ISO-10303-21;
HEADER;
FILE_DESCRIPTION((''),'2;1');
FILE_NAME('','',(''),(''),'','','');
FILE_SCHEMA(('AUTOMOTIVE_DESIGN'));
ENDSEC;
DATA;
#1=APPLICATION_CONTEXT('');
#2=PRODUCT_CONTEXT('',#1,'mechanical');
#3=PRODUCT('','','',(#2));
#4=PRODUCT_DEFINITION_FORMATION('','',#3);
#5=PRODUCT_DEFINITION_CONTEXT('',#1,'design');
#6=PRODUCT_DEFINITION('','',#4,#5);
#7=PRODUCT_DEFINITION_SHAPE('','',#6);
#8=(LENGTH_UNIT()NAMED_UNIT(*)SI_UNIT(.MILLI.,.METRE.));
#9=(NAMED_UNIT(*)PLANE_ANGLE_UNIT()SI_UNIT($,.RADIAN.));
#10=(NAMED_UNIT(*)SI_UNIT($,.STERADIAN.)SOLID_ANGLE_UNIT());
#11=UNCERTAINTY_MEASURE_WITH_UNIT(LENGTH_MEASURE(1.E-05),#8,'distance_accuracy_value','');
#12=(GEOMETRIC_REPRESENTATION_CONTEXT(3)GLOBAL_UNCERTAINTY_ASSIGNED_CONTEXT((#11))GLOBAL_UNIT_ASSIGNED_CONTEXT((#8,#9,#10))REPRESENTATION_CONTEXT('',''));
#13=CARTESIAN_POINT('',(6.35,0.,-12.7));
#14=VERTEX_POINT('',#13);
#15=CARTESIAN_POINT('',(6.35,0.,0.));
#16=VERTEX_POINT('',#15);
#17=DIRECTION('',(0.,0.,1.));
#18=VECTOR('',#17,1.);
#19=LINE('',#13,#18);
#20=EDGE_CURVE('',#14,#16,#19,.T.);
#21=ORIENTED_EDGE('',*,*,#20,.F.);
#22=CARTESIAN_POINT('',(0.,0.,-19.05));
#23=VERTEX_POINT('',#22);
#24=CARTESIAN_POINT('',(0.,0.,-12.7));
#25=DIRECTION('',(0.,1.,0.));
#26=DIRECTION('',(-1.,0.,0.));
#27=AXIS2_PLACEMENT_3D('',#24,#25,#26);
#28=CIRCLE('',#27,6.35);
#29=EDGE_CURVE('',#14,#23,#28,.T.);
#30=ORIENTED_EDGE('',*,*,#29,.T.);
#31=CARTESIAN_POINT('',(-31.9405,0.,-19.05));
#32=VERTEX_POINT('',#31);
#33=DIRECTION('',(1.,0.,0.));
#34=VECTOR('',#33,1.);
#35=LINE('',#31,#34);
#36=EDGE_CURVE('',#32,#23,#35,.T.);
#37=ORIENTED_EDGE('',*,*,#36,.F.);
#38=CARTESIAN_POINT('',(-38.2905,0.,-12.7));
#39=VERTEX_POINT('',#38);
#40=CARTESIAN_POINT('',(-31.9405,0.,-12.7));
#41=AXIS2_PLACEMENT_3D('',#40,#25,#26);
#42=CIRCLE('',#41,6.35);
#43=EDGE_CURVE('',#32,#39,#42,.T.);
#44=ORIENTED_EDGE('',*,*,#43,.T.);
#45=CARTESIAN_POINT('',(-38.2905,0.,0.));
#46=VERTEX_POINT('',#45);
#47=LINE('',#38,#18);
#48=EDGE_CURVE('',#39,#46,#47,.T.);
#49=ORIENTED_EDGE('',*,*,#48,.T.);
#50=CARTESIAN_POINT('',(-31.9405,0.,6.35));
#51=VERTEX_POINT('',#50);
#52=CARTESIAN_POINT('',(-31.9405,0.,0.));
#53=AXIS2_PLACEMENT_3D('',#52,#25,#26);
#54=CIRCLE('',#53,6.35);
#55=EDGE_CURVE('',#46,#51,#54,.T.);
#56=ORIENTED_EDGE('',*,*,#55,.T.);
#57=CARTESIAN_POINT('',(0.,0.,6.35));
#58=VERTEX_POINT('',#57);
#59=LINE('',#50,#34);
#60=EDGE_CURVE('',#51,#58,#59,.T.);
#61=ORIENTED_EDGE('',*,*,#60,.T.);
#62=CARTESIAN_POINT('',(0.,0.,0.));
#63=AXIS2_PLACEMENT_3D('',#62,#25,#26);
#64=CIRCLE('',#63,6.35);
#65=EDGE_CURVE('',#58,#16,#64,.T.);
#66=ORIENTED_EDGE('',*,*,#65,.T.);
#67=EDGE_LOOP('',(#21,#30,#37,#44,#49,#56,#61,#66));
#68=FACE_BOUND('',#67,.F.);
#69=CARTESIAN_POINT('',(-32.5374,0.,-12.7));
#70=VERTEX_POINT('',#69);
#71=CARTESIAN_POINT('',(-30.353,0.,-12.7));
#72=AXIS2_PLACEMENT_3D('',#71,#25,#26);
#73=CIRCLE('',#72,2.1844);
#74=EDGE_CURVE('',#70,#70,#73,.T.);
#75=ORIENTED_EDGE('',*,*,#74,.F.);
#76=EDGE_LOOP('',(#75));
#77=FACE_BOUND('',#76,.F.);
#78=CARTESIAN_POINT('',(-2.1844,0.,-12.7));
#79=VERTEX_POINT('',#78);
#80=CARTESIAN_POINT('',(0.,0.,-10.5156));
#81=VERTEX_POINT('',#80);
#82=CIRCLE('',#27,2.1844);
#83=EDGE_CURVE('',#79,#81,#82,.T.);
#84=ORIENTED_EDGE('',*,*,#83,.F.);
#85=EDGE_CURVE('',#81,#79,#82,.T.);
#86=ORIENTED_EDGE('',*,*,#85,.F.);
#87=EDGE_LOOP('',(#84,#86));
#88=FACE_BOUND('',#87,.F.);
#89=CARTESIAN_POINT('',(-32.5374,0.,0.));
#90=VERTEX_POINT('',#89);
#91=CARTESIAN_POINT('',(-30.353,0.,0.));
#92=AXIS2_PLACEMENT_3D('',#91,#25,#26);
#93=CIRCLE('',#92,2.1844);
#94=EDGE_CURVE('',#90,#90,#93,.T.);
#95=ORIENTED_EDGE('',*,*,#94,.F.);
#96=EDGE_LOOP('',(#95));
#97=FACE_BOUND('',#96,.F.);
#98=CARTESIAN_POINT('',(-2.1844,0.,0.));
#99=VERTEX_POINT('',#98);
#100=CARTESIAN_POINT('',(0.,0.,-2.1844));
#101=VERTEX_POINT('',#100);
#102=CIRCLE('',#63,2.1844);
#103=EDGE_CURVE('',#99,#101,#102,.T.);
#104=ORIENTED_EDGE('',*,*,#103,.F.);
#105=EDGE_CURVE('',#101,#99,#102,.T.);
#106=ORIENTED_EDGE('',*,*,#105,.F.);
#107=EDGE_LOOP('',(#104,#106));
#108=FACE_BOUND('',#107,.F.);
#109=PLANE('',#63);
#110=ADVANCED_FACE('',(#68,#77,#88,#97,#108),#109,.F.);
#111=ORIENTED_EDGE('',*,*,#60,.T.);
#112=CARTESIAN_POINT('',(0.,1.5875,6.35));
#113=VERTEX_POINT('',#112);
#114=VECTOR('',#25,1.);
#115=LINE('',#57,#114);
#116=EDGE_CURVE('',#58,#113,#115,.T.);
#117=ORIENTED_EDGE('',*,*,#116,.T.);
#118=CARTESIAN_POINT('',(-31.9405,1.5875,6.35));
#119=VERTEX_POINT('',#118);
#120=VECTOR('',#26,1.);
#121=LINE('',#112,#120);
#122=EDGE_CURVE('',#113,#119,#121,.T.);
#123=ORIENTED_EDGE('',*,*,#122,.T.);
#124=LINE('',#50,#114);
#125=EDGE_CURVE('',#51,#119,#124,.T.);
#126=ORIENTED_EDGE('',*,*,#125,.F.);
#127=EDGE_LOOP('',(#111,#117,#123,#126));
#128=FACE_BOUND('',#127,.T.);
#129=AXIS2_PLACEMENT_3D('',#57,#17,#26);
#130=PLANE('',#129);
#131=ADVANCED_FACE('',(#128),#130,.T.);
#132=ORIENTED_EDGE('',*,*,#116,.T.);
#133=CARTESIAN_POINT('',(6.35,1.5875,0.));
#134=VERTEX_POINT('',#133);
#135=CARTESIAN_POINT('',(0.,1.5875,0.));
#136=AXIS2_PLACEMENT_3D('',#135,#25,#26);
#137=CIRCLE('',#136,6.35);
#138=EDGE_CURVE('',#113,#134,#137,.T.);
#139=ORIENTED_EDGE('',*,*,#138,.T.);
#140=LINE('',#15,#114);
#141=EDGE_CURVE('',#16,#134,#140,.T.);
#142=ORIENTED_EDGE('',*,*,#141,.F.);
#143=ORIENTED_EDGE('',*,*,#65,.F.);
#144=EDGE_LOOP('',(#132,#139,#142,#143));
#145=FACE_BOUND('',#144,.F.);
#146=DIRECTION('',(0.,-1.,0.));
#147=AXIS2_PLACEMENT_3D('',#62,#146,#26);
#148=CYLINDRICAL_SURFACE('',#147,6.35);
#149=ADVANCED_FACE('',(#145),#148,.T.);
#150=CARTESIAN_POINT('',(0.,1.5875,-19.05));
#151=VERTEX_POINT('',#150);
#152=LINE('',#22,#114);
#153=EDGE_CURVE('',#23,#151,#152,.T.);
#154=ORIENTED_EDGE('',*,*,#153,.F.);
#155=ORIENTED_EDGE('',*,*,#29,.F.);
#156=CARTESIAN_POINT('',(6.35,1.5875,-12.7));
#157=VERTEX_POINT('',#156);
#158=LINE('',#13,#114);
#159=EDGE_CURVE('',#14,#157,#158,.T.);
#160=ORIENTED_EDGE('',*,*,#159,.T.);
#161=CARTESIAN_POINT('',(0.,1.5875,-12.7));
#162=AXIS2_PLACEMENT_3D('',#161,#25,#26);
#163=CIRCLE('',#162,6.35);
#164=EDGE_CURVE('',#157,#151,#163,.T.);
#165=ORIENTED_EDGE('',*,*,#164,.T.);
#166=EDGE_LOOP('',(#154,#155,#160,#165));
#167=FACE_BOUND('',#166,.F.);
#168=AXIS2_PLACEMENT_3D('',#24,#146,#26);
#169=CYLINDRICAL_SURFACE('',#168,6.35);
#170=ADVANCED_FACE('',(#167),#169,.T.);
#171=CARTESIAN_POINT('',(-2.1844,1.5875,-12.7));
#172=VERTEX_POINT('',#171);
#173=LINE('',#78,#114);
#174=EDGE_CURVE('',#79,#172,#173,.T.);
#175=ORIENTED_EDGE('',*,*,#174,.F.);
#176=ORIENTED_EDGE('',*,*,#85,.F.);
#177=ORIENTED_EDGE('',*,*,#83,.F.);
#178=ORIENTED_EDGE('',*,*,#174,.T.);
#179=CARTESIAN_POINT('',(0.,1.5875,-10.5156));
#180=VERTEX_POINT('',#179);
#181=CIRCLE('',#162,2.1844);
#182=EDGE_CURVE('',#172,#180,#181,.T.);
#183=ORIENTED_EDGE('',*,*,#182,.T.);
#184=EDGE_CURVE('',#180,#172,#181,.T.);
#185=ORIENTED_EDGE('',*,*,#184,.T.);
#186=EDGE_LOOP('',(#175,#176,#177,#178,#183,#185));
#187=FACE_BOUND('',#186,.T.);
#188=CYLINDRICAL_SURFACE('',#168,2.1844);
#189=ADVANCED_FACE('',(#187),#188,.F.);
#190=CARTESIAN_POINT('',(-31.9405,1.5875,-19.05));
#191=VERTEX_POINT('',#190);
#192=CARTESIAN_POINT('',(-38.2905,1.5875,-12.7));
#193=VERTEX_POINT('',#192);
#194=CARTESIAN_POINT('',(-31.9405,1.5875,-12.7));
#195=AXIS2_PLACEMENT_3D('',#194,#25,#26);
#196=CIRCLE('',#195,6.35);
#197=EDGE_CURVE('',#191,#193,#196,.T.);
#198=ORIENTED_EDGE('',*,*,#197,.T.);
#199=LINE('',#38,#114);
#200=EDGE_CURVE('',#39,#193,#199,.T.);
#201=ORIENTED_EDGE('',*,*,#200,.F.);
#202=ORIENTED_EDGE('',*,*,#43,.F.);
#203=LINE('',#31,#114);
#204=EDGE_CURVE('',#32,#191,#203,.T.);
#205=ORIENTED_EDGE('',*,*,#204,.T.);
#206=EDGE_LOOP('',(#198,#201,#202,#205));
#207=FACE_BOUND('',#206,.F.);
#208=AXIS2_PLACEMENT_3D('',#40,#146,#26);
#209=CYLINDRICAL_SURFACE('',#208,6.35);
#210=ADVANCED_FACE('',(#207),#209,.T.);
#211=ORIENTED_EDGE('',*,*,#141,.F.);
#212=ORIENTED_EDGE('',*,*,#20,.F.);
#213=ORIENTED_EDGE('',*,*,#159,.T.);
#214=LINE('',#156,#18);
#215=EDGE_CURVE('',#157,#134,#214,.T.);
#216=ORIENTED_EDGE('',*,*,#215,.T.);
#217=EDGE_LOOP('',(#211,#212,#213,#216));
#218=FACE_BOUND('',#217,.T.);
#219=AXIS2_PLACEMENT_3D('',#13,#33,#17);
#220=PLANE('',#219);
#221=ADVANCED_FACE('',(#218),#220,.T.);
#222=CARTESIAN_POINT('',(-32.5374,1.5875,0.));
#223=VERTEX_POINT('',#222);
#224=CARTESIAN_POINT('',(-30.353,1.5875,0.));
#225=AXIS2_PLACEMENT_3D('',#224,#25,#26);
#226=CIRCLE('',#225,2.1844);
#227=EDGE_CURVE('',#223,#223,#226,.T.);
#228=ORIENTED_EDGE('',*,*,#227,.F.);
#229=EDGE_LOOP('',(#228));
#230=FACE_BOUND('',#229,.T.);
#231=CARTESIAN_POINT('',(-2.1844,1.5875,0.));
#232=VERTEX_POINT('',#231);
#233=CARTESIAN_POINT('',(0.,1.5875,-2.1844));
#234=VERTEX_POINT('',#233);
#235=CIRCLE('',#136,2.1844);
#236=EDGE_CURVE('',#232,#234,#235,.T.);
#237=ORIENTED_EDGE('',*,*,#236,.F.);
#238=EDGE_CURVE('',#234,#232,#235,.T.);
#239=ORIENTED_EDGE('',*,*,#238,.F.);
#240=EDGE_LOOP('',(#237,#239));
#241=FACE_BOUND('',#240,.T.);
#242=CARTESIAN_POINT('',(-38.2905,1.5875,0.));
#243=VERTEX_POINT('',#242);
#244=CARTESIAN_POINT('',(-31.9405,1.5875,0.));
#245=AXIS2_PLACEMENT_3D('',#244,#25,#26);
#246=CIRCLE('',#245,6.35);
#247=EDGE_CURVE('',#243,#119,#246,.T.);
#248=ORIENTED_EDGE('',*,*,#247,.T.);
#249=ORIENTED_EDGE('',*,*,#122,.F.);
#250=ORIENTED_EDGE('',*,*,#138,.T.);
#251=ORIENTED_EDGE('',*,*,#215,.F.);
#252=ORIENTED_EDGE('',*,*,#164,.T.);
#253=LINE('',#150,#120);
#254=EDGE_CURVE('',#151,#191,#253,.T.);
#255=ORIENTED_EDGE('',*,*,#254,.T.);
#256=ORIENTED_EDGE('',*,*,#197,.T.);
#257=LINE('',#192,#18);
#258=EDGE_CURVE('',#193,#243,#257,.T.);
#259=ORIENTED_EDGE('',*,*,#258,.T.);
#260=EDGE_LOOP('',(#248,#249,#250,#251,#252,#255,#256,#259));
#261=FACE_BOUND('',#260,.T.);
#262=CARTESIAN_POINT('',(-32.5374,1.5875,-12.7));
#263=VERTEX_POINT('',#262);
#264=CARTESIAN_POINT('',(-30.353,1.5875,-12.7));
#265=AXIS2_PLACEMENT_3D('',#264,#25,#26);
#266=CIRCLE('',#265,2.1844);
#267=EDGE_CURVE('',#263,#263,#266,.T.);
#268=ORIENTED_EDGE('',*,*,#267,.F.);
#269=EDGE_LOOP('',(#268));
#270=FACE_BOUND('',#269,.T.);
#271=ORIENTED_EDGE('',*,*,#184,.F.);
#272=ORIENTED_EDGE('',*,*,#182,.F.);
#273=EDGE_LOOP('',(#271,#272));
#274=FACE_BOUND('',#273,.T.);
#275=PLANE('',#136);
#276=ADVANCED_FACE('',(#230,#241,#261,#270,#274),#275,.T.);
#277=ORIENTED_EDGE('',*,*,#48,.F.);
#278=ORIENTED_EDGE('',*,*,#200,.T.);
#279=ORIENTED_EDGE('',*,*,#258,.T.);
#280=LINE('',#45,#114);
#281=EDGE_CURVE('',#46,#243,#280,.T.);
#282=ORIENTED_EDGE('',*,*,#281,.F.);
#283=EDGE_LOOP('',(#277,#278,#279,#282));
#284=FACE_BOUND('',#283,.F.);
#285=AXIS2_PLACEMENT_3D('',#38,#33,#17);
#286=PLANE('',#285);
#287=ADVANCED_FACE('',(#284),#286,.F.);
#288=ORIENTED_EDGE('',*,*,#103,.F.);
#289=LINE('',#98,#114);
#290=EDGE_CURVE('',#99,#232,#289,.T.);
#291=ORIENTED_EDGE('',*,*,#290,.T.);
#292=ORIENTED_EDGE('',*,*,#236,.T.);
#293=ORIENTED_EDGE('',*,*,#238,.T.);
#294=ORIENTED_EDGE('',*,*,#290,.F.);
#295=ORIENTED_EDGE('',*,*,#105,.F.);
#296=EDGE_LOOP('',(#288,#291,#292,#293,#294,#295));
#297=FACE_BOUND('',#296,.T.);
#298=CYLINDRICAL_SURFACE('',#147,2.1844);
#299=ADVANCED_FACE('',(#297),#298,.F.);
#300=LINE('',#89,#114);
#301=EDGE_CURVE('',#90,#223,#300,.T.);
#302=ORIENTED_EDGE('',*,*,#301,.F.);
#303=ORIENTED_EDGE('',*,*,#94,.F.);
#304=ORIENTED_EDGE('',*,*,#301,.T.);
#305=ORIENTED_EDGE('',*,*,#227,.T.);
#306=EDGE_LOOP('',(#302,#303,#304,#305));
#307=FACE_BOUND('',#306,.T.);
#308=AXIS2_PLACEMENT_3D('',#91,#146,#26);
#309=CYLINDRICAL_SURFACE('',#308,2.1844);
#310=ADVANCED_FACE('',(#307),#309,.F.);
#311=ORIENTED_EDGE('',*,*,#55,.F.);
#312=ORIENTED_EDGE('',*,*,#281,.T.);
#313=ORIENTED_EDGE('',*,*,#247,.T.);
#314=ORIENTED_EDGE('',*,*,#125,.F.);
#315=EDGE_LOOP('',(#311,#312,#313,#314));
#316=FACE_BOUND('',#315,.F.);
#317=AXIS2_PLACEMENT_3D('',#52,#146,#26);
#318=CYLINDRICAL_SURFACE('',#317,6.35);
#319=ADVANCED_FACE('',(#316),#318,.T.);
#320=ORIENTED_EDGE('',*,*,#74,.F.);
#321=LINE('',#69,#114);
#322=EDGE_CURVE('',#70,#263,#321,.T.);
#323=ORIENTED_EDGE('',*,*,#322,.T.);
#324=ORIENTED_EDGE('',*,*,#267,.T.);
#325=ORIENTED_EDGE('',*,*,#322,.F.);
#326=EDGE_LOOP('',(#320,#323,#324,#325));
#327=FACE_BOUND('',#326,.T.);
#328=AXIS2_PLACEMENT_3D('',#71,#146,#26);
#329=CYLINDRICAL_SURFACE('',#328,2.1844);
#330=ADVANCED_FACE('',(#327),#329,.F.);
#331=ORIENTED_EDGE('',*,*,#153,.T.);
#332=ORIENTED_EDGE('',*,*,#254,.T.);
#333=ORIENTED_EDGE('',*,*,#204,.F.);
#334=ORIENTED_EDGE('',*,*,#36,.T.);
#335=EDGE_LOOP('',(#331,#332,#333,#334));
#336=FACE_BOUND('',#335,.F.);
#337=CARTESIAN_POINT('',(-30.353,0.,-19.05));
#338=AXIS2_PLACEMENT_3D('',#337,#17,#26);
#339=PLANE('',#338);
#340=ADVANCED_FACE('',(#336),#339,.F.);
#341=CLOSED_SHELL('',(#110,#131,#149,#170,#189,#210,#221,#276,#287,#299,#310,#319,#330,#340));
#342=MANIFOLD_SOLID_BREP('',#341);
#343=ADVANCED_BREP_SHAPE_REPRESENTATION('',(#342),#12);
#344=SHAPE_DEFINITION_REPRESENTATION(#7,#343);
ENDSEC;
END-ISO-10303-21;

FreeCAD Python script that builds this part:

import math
import FreeCAD as App
import Part
import Sketcher
Q = App.Units.Quantity

doc = App.newDocument("Part")
params = doc.addObject("Spreadsheet::Sheet", "Params")
for row, (alias, value) in enumerate([
    ("sketch1_radius", "0.25 in"),
    ("sketch1_diameter", "0.172 in"),
    ("sketch1_height", "0.5 in"),
    ("pad1_length", "0.0625 in"),
], start=1):
    params.set(f"A{row}", alias)
    params.set(f"B{row}", "=" + value)
    params.setAlias(f"B{row}", alias)

body = doc.addObject("PartDesign::Body", "Body")

sketch1 = body.newObject("Sketcher::SketchObject", "Sketch")
sketch1.AttachmentSupport = (doc.getObject("XZ_Plane"), [""])
sketch1.MapMode = "FlatFace"
sketch1.addGeometry(Part.ArcOfCircle(Part.Circle(App.Vector(0, 0, 0), App.Vector(0, 0, 1), 6.3), math.radians(0), math.radians(90)), False)
sketch1.addGeometry(Part.LineSegment(App.Vector(6.3, 0, 0), App.Vector(6.3, -12.7, 0)), False)
sketch1.addGeometry(Part.ArcOfCircle(Part.Circle(App.Vector(0, -12.7, 0), App.Vector(0, 0, 1), 6.3), math.radians(-90), math.radians(0)), False)
sketch1.addGeometry(Part.LineSegment(App.Vector(0, -19.1, 0), App.Vector(-31.9, -19.1, 0)), False)
sketch1.addGeometry(Part.ArcOfCircle(Part.Circle(App.Vector(-31.9, -12.7, 0), App.Vector(0, 0, 1), 6.3), math.radians(180), math.radians(270)), False)
sketch1.addGeometry(Part.LineSegment(App.Vector(-38.3, -12.7, 0), App.Vector(-38.3, 0, 0)), False)
sketch1.addGeometry(Part.ArcOfCircle(Part.Circle(App.Vector(-31.9, 0, 0), App.Vector(0, 0, 1), 6.3), math.radians(90), math.radians(180)), False)
sketch1.addGeometry(Part.LineSegment(App.Vector(-31.9, 6.3, 0), App.Vector(0, 6.3, 0)), False)
sketch1.addGeometry(Part.Circle(App.Vector(0, 0, 0), App.Vector(0, 0, 1), 2.2), False)
sketch1.addGeometry(Part.Circle(App.Vector(0, -12.7, 0), App.Vector(0, 0, 1), 2.2), False)
sketch1.addGeometry(Part.Circle(App.Vector(-30.4, 0, 0), App.Vector(0, 0, 1), 2.2), False)
sketch1.addGeometry(Part.Circle(App.Vector(-30.4, -12.7, 0), App.Vector(0, 0, 1), 2.2), False)
sketch1.addConstraint(Sketcher.Constraint("Tangent", 0, 1, 1, 1))
sketch1.addConstraint(Sketcher.Constraint("Tangent", 1, 2, 2, 2))
sketch1.addConstraint(Sketcher.Constraint("Tangent", 2, 1, 3, 1))
sketch1.addConstraint(Sketcher.Constraint("Tangent", 3, 2, 4, 2))
sketch1.addConstraint(Sketcher.Constraint("Tangent", 4, 1, 5, 1))
sketch1.addConstraint(Sketcher.Constraint("Tangent", 5, 2, 6, 2))
sketch1.addConstraint(Sketcher.Constraint("Tangent", 6, 1, 7, 1))
sketch1.addConstraint(Sketcher.Constraint("Tangent", 7, 2, 0, 2))
sketch1.addConstraint(Sketcher.Constraint("Vertical", 1))
sketch1.addConstraint(Sketcher.Constraint("Horizontal", 3))
sketch1.addConstraint(Sketcher.Constraint("Vertical", 5))
sketch1.addConstraint(Sketcher.Constraint("Horizontal", 7))
sketch1.addConstraint(Sketcher.Constraint("Coincident", 0, 3, -1, 1))
sketch1.addConstraint(Sketcher.Constraint("Coincident", 8, 3, -1, 1))
sketch1.addConstraint(Sketcher.Constraint("Coincident", 9, 3, 2, 3))
sketch1.addConstraint(Sketcher.Constraint("Equal", 0, 2))
sketch1.addConstraint(Sketcher.Constraint("Equal", 2, 4))
sketch1.addConstraint(Sketcher.Constraint("Equal", 4, 6))
sketch1.addConstraint(Sketcher.Constraint("Equal", 8, 9))
sketch1.addConstraint(Sketcher.Constraint("Equal", 9, 10))
sketch1.addConstraint(Sketcher.Constraint("Equal", 10, 11))
sketch1.addConstraint(Sketcher.Constraint("PointOnObject", 10, 3, -1))
sketch1.addConstraint(Sketcher.Constraint("Horizontal", 9, 3, 11, 3))
sketch1.addConstraint(Sketcher.Constraint("Vertical", 10, 3, 11, 3))
sketch1.addConstraint(Sketcher.Constraint("Radius", 0, Q("0.25 in")))
sketch1.addConstraint(Sketcher.Constraint("Diameter", 8, Q("0.172 in")))
sketch1.addConstraint(Sketcher.Constraint("DistanceY", 1, 2, 1, 1, Q("0.5 in")))
sketch1.addConstraint(Sketcher.Constraint("DistanceX", 6, 3, 10, 3, Q("0.0625 in")))
sketch1.addConstraint(Sketcher.Constraint("DistanceX", 3, 2, 3, 1, Q("1.2575 in")))
sketch1.setExpression("Constraints[24]", "Params.sketch1_radius")
sketch1.setExpression("Constraints[25]", "Params.sketch1_diameter")
sketch1.setExpression("Constraints[26]", "Params.sketch1_height")
pad1 = body.newObject("PartDesign::Pad", "Pad")
pad1.Profile = sketch1
pad1.setExpression("Length", "Params.pad1_length")
pad1.Reversed = True

doc.recompute()
